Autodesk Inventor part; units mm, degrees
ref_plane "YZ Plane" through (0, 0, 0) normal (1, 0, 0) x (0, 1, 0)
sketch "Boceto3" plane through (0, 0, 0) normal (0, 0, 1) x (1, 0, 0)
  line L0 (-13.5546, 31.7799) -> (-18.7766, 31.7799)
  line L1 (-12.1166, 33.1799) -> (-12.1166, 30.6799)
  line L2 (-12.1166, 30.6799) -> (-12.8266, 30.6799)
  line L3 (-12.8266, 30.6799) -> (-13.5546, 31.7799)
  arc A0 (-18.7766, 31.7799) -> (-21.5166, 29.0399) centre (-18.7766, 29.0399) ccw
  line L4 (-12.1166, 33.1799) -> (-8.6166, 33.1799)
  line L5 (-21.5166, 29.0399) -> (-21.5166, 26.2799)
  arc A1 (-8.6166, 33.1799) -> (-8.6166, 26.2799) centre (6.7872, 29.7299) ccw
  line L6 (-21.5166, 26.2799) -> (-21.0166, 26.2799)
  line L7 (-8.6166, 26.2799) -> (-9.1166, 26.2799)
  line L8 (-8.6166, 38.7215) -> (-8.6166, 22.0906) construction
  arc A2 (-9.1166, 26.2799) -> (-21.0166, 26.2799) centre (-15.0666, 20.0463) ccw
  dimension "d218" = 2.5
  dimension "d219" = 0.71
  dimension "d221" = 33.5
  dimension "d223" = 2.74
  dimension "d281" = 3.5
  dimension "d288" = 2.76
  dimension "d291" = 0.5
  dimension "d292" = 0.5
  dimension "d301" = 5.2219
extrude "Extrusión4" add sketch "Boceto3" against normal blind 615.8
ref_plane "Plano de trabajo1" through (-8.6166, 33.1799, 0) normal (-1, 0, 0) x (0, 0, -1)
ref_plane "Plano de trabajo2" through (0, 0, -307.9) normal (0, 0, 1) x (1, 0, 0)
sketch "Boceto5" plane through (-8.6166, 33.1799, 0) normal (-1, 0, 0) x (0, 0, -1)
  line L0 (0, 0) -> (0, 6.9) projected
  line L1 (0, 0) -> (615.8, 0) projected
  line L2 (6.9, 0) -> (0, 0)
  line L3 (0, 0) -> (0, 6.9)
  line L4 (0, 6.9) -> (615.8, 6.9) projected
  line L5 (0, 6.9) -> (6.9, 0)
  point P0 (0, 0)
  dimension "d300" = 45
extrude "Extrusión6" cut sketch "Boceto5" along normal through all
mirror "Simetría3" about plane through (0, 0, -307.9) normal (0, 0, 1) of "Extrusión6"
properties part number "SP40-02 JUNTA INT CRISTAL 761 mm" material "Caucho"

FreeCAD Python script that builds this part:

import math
import FreeCAD as App
import Part
import Sketcher


def add_polygon(sketch, points):
    """Adds a closed chain of lines whose ends are joined by coincident constraints."""
    first, n = sketch.GeometryCount, len(points)
    for a, b in zip(points, points[1:] + points[:1]):
        sketch.addGeometry(Part.LineSegment(App.Vector(*a, 0), App.Vector(*b, 0)), False)
    for i in range(n):
        sketch.addConstraint(Sketcher.Constraint("Coincident", first + i, 2, first + (i + 1) % n, 1))

doc = App.newDocument("Part")
params = doc.addObject("Spreadsheet::Sheet", "Params")
for row, (alias, value) in enumerate([
    ("sketch1_radius", "2.74 mm"),
    ("sketch1_width", "0.5 mm"),
    ("sketch1_width2", "3.5 mm"),
    ("sketch1_height", "2.5 mm"),
    ("sketch1_width3", "0.71 mm"),
    ("pad1_length", "615.8 mm"),
    ("sketch2_width", "6.9 mm"),
], start=1):
    params.set(f"A{row}", alias)
    params.set(f"B{row}", "=" + value)
    params.setAlias(f"B{row}", alias)

body = doc.addObject("PartDesign::Body", "Body")

# Sketch on XY plane
sketch1 = body.newObject("Sketcher::SketchObject", "Sketch")
sketch1.AttachmentSupport = (doc.getObject("XY_Plane"), [""])
sketch1.MapMode = "FlatFace"
sketch1.addGeometry([
    Part.LineSegment(App.Vector(-12.8, 30.7, 0), App.Vector(-13.6, 31.8, 0)),  # 0
    Part.LineSegment(App.Vector(-13.6, 31.8, 0), App.Vector(-18.8, 31.8, 0)),  # 1
    Part.ArcOfCircle(Part.Circle(App.Vector(-18.8, 29, 0), App.Vector(0, 0, 1), 2.7), math.radians(90), math.radians(180)),  # 2
    Part.LineSegment(App.Vector(-21.5, 29, 0), App.Vector(-21.5, 26.3, 0)),  # 3
    Part.LineSegment(App.Vector(-21.5, 26.3, 0), App.Vector(-21, 26.3, 0)),  # 4
    Part.ArcOfCircle(Part.Circle(App.Vector(-15.1, 20, 0), App.Vector(0, 0, 1), 8.6), math.radians(46), math.radians(134)),  # 5
    Part.LineSegment(App.Vector(-9.1, 26.3, 0), App.Vector(-8.6, 26.3, 0)),  # 6
    Part.ArcOfCircle(Part.Circle(App.Vector(6.8, 29.7, 0), App.Vector(0, 0, 1), 15.8), math.radians(167), math.radians(193)),  # 7
    Part.LineSegment(App.Vector(-8.6, 33.2, 0), App.Vector(-12.1, 33.2, 0)),  # 8
    Part.LineSegment(App.Vector(-12.1, 33.2, 0), App.Vector(-12.1, 30.7, 0)),  # 9
    Part.LineSegment(App.Vector(-12.1, 30.7, 0), App.Vector(-12.8, 30.7, 0)),  # 10
], False)
sketch1.addConstraint([
    Sketcher.Constraint("Coincident", 0, 2, 1, 1),
    Sketcher.Constraint("Tangent", 1, 2, 2, 1),
    Sketcher.Constraint("Tangent", 2, 2, 3, 1),
    Sketcher.Constraint("Coincident", 3, 2, 4, 1),
    Sketcher.Constraint("Coincident", 4, 2, 5, 2),
    Sketcher.Constraint("Coincident", 5, 1, 6, 1),
    Sketcher.Constraint("Coincident", 6, 2, 7, 2),
    Sketcher.Constraint("Coincident", 7, 1, 8, 1),
    Sketcher.Constraint("Coincident", 8, 2, 9, 1),
    Sketcher.Constraint("Coincident", 9, 2, 10, 1),
    Sketcher.Constraint("Coincident", 10, 2, 0, 1),
    Sketcher.Constraint("Horizontal", 1),
    Sketcher.Constraint("Vertical", 3),
    Sketcher.Constraint("Horizontal", 4),
    Sketcher.Constraint("Horizontal", 6),
    Sketcher.Constraint("Horizontal", 8),
    Sketcher.Constraint("Vertical", 9),
    Sketcher.Constraint("Horizontal", 10),
    Sketcher.Constraint("Horizontal", 4, 2, 5, 1),
    Sketcher.Constraint("Vertical", 6, 2, 7, 1),
    Sketcher.Constraint("Equal", 4, 6),
    Sketcher.Constraint("Radius", 2, 2.74),
    Sketcher.Constraint("DistanceX", 4, 1, 4, 2, 0.5),
    Sketcher.Constraint("DistanceX", 8, 2, 8, 1, 3.5),
    Sketcher.Constraint("DistanceY", 9, 2, 9, 1, 2.5),
    Sketcher.Constraint("DistanceX", 10, 2, 10, 1, 0.71),
    Sketcher.Constraint("DistanceY", 3, 2, 3, 1, 2.76),
    Sketcher.Constraint("DistanceX", 1, 2, 1, 1, 5.222),
    Sketcher.Constraint("Radius", 5, 8.6174),
    Sketcher.Constraint("Radius", 7, 15.7854),
    Sketcher.Constraint("DistanceX", 4, 2, 5, 1, 11.9),
    Sketcher.Constraint("DistanceY", 0, 2, 7, 1, 1.4),
    Sketcher.Constraint("DistanceY", -1, 1, 2, 3, 29.04),
    Sketcher.Constraint("DistanceX", 2, 3, -1, 1, 18.7766),
])
sketch1.setExpression("Constraints[21]", "Params.sketch1_radius")
sketch1.setExpression("Constraints[22]", "Params.sketch1_width")
sketch1.setExpression("Constraints[23]", "Params.sketch1_width2")
sketch1.setExpression("Constraints[24]", "Params.sketch1_height")
sketch1.setExpression("Constraints[25]", "Params.sketch1_width3")
pad1 = body.newObject("PartDesign::Pad", "Pad")
pad1.Profile = sketch1
pad1.setExpression("Length", "Params.pad1_length")
pad1.Reversed = True

# Sketch on YZ plane
sketch2 = body.newObject("Sketcher::SketchObject", "Sketch001")
sketch2.AttachmentSupport = (doc.getObject("YZ_Plane"), [""])
sketch2.MapMode = "FlatFace"
sketch2.AttachmentOffset = App.Placement(App.Vector(0, 0, -8.6166), App.Rotation())
add_polygon(sketch2, [(26, 0), (33, 0), (33, -7)])  # lines 0-2
sketch2.addConstraint([
    Sketcher.Constraint("Horizontal", 0),
    Sketcher.Constraint("Vertical", 1),
    Sketcher.Constraint("PointOnObject", 0, 2, -1),
    Sketcher.Constraint("Equal", 0, 1),
    Sketcher.Constraint("DistanceX", 0, 1, 0, 2, 6.9),
    Sketcher.Constraint("DistanceX", -1, 1, 0, 2, 33.18),
])
sketch2.setExpression("Constraints[7]", "Params.sketch2_width")
pocket1 = body.newObject("PartDesign::Pocket", "Pocket")
pocket1.Profile = sketch2
pocket1.Type = "ThroughAll"
doc.recompute()

datumplane = body.newObject("PartDesign::Plane", "DatumPlane")
datumplane.AttachmentSupport = (doc.getObject("XY_Plane"), [""])
datumplane.MapMode = "FlatFace"
datumplane.AttachmentOffset = App.Placement(App.Vector(0, 0, -307.9), App.Rotation())
mirrored = body.newObject("PartDesign::Mirrored", "Mirrored")
mirrored.Originals = [pocket1]
mirrored.MirrorPlane = (datumplane, [""])
body.Tip = mirrored

doc.recompute()
